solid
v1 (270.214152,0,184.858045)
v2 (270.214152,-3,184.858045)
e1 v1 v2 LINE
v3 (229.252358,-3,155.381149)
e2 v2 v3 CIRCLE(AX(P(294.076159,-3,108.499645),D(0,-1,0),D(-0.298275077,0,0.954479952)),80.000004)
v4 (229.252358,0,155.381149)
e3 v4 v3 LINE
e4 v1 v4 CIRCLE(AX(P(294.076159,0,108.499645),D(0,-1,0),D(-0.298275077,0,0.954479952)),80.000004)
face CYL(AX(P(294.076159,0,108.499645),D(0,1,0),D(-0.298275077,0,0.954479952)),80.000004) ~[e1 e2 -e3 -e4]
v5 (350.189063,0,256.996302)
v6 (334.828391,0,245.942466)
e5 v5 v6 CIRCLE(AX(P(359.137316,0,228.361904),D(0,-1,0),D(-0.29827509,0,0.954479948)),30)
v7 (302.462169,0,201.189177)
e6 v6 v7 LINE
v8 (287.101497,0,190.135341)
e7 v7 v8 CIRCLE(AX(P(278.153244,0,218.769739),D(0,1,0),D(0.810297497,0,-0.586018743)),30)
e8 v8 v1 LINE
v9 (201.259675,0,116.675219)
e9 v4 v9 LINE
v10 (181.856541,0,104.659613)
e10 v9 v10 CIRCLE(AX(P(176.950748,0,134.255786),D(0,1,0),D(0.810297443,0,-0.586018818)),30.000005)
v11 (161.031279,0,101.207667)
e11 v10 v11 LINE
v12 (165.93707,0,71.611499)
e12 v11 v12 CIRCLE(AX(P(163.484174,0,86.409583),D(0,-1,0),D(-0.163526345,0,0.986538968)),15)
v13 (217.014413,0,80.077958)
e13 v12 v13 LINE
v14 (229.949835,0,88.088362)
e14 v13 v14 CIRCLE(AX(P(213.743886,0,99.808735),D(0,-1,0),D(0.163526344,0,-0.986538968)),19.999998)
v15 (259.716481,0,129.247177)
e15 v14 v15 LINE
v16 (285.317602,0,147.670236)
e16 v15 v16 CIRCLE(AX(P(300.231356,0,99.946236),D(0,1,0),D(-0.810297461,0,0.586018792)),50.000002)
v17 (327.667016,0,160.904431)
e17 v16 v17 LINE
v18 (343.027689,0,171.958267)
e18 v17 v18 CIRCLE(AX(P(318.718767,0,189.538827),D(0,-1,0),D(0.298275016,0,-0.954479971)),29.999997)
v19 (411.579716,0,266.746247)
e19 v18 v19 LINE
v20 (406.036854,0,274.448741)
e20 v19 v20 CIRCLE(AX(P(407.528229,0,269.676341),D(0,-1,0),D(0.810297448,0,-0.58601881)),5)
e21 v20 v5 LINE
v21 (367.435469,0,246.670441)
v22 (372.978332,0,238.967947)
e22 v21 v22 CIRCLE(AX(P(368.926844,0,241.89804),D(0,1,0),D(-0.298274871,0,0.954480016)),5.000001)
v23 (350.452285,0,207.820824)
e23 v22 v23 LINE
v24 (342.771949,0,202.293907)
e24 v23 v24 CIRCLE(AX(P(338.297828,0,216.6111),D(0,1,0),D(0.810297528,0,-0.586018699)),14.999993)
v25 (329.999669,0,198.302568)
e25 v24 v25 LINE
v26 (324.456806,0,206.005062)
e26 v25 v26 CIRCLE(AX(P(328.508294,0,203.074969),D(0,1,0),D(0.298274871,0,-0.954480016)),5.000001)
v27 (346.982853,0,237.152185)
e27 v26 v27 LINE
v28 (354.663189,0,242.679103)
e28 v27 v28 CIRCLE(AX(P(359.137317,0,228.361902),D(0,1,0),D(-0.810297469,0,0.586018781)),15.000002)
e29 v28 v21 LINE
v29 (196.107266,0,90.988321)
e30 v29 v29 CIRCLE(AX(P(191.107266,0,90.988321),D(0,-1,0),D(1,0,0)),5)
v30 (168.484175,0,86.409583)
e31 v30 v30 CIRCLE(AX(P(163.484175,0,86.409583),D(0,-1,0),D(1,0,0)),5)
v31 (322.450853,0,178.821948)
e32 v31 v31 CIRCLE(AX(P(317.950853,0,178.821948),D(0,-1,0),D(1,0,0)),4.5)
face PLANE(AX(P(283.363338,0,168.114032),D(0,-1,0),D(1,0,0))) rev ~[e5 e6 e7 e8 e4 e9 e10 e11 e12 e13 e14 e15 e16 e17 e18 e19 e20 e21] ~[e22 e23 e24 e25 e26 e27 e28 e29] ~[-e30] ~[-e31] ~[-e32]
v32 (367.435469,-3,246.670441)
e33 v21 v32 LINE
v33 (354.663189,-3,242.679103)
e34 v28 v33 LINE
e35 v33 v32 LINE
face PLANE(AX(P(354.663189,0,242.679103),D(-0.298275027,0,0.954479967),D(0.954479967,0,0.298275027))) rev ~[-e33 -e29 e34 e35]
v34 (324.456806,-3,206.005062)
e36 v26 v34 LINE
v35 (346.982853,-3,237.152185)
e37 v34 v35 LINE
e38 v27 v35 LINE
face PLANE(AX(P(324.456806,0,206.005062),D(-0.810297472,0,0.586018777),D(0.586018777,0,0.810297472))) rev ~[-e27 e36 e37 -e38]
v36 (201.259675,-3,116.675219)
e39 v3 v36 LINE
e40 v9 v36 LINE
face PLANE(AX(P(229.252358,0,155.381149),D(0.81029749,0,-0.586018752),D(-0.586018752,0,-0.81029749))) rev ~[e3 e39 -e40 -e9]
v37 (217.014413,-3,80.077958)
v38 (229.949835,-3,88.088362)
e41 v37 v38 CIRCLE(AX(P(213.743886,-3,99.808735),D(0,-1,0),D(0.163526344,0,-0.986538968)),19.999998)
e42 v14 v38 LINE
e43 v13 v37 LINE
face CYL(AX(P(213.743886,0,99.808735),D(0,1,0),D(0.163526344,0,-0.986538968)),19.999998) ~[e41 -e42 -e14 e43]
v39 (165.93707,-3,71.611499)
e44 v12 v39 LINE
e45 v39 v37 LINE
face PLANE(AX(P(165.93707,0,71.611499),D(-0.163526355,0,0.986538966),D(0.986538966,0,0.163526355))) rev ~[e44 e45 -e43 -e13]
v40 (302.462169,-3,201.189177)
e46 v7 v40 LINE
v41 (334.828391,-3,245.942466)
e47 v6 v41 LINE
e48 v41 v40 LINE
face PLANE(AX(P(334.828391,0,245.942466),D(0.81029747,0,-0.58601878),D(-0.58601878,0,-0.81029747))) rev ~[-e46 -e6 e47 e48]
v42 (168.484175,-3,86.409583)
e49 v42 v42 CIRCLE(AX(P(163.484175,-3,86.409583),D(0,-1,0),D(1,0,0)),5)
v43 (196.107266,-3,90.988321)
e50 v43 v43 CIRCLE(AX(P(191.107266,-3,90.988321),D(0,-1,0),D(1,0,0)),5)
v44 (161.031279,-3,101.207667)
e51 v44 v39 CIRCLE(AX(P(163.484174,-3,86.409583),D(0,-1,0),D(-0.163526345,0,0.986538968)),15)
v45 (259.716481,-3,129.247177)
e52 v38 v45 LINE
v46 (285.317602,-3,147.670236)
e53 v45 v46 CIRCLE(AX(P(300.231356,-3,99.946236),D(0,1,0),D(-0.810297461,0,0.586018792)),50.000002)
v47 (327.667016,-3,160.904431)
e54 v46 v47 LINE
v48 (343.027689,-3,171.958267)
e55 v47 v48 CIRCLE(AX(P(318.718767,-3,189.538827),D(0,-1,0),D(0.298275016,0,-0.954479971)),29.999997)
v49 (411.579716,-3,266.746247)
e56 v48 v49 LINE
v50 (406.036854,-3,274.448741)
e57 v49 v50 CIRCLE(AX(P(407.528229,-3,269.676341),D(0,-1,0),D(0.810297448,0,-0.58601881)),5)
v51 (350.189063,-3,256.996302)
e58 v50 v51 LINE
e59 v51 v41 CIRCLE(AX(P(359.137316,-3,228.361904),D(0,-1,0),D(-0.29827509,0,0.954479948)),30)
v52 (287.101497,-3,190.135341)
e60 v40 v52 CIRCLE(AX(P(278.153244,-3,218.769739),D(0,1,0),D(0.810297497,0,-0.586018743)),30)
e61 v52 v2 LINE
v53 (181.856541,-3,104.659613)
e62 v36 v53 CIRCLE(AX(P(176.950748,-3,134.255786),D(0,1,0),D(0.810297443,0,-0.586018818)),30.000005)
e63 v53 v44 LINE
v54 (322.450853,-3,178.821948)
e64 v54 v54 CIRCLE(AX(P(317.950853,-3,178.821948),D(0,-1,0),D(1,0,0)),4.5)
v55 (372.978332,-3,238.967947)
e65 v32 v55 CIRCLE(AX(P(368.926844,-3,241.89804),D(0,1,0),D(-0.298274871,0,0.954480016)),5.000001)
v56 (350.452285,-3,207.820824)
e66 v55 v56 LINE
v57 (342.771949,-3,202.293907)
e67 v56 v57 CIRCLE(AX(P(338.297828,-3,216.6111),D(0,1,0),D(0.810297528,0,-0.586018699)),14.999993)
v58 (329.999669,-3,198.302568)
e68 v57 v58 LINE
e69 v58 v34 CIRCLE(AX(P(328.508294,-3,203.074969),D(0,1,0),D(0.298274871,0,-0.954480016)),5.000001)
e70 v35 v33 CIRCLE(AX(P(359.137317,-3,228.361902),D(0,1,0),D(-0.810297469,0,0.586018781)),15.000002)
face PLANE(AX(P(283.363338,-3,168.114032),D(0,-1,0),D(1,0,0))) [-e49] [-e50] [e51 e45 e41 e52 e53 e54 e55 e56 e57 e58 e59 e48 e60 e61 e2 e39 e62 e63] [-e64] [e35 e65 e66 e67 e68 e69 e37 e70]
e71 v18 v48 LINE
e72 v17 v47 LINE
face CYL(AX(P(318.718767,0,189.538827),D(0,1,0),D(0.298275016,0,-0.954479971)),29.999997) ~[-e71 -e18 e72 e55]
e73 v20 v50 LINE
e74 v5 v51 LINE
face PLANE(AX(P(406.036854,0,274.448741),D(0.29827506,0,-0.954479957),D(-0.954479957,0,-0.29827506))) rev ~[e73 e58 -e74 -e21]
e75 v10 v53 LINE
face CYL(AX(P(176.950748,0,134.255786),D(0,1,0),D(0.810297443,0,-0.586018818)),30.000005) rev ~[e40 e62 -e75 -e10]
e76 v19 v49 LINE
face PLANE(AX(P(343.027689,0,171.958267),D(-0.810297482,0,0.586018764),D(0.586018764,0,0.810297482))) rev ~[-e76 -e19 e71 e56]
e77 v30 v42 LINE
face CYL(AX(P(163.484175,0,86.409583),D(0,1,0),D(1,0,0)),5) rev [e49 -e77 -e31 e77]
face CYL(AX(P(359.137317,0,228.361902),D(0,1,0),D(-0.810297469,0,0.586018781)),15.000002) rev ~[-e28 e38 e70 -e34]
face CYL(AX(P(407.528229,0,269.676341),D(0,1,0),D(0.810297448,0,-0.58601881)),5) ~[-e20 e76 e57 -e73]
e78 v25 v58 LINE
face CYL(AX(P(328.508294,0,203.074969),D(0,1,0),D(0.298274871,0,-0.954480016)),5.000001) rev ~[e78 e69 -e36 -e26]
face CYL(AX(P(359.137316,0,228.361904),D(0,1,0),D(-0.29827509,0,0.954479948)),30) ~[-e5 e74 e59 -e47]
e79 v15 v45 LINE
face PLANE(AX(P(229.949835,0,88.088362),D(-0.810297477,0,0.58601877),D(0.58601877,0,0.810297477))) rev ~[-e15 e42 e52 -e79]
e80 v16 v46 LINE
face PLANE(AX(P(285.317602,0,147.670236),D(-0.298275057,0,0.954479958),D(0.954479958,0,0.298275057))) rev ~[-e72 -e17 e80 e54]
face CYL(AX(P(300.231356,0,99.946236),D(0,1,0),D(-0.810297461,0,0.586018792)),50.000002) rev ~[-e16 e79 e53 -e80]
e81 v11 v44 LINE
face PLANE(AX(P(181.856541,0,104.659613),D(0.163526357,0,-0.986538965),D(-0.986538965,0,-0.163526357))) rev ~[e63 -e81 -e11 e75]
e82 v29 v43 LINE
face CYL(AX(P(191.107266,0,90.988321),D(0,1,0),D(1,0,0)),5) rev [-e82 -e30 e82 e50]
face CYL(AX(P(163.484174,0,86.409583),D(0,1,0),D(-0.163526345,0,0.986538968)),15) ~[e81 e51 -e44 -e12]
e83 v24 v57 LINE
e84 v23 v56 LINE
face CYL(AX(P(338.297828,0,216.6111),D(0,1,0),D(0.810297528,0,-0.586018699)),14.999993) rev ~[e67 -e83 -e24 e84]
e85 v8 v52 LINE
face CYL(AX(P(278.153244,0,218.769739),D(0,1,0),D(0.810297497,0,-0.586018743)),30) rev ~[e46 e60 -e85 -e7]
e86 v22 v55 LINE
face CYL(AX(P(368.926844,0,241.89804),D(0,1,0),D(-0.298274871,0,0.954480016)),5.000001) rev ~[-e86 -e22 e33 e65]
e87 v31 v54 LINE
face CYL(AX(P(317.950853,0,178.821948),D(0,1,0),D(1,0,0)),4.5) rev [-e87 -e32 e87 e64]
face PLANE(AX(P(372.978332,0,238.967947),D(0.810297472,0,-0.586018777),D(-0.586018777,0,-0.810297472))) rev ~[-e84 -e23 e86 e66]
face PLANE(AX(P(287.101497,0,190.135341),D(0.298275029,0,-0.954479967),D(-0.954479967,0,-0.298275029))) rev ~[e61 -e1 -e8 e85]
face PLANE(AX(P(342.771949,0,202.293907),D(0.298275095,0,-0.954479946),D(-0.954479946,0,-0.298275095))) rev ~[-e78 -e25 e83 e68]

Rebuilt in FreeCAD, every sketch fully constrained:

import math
import FreeCAD as App
import Part
import Sketcher
from FreeCAD import Vector

doc = App.newDocument("Part")
params = doc.addObject("Spreadsheet::Sheet", "Params")
for row, (alias, value) in enumerate([
    ("sketch1_diameter", "10 mm"),
    ("sketch1_diameter2", "10 mm"),
    ("sketch1_diameter3", "9 mm"),
    ("sketch1_radius", "15 mm"),
    ("sketch1_radius2", "19.999998 mm"),
    ("pad1_length", "3 mm"),
], start=1):
    params.set(f"A{row}", alias)
    params.set(f"B{row}", "=" + value)
    params.setAlias(f"B{row}", alias)

body = doc.addObject("PartDesign::Body", "Body")

# Sketch on XZ plane
sketch1 = doc.addObject("Sketcher::SketchObject", "Sketch")
body.addObject(sketch1)
sketch1.AttachmentSupport = (doc.XZ_Plane, [""])
sketch1.MapMode = "FlatFace"
sketch1.addGeometry([
    Part.LineSegment(Vector(181.856541, 104.659613, 0), Vector(161.031279, 101.207667, 0)),  # 0
    Part.ArcOfCircle(Part.Circle(Vector(163.484174, 86.409583, 0), Vector(0, 0, 1), 15), math.radians(99.411638), math.radians(279.411641)),  # 1
    Part.LineSegment(Vector(165.93707, 71.611499, 0), Vector(217.014413, 80.077958, 0)),  # 2
    Part.ArcOfCircle(Part.Circle(Vector(213.743886, 99.808735, 0), Vector(0, 0, 1), 19.999998), math.radians(-80.588362), math.radians(-35.874991)),  # 3
    Part.LineSegment(Vector(229.949835, 88.088362, 0), Vector(259.716481, 129.247177, 0)),  # 4
    Part.ArcOfCircle(Part.Circle(Vector(300.231356, 99.946236, 0), Vector(0, 0, 1), 50.000002), math.radians(107.354029), math.radians(144.125004)),  # 5
    Part.LineSegment(Vector(285.317602, 147.670236, 0), Vector(327.667016, 160.904431, 0)),  # 6
    Part.ArcOfCircle(Part.Circle(Vector(318.718767, 189.538827, 0), Vector(0, 0, 1), 29.999997), math.radians(-72.645974), math.radians(-35.874991)),  # 7
    Part.LineSegment(Vector(343.027689, 171.958267, 0), Vector(411.579716, 266.746247, 0)),  # 8
    Part.ArcOfCircle(Part.Circle(Vector(407.528229, 269.676341, 0), Vector(0, 0, 1), 5), math.radians(-35.874997), math.radians(107.354022)),  # 9
    Part.LineSegment(Vector(406.036854, 274.448741, 0), Vector(350.189063, 256.996302, 0)),  # 10
    Part.ArcOfCircle(Part.Circle(Vector(359.137316, 228.361904, 0), Vector(0, 0, 1), 30), math.radians(107.35403), math.radians(144.125008)),  # 11
    Part.LineSegment(Vector(334.828391, 245.942466, 0), Vector(302.462169, 201.189177, 0)),  # 12
    Part.ArcOfCircle(Part.Circle(Vector(278.153244, 218.769739, 0), Vector(0, 0, 1), 30), math.radians(-72.64597), math.radians(-35.874992)),  # 13
    Part.LineSegment(Vector(287.101497, 190.135341, 0), Vector(270.214152, 184.858045, 0)),  # 14
    Part.ArcOfCircle(Part.Circle(Vector(294.076159, 108.499645, 0), Vector(0, 0, 1), 80.000004), math.radians(107.35403), math.radians(144.125006)),  # 15
    Part.LineSegment(Vector(229.252358, 155.381149, 0), Vector(201.259675, 116.675219, 0)),  # 16
    Part.ArcOfCircle(Part.Circle(Vector(176.950748, 134.255786, 0), Vector(0, 0, 1), 30.000005), math.radians(-80.588359), math.radians(-35.874997)),  # 17
    Part.Circle(Vector(163.484175, 86.409583, 0), Vector(0, 0, 1), 5),  # 18
    Part.Circle(Vector(191.107266, 90.988321, 0), Vector(0, 0, 1), 5),  # 19
    Part.Circle(Vector(317.950853, 178.821948, 0), Vector(0, 0, 1), 4.5),  # 20
    Part.LineSegment(Vector(324.456806, 206.005062, 0), Vector(346.982853, 237.152185, 0)),  # 21
    Part.ArcOfCircle(Part.Circle(Vector(359.137317, 228.361902, 0), Vector(0, 0, 1), 15.000002), math.radians(107.354033), math.radians(144.125005)),  # 22
    Part.LineSegment(Vector(354.663189, 242.679103, 0), Vector(367.435469, 246.670441, 0)),  # 23
    Part.ArcOfCircle(Part.Circle(Vector(368.926844, 241.89804, 0), Vector(0, 0, 1), 5.000001), math.radians(-35.874982), math.radians(107.354017)),  # 24
    Part.LineSegment(Vector(372.978332, 238.967947, 0), Vector(350.452285, 207.820824, 0)),  # 25
    Part.ArcOfCircle(Part.Circle(Vector(338.297828, 216.6111, 0), Vector(0, 0, 1), 14.999993), math.radians(-72.645982), math.radians(-35.874989)),  # 26
    Part.LineSegment(Vector(342.771949, 202.293907, 0), Vector(329.999669, 198.302568, 0)),  # 27
    Part.ArcOfCircle(Part.Circle(Vector(328.508294, 203.074969, 0), Vector(0, 0, 1), 5.000001), math.radians(144.125018), math.radians(287.354017)),  # 28
], False)
sketch1.addConstraint([
    Sketcher.Constraint("Coincident", 0, 2, 1, 1),
    Sketcher.Constraint("Coincident", 1, 2, 2, 1),
    Sketcher.Constraint("Coincident", 2, 2, 3, 1),
    Sketcher.Constraint("Coincident", 3, 2, 4, 1),
    Sketcher.Constraint("Coincident", 4, 2, 5, 2),
    Sketcher.Constraint("Coincident", 5, 1, 6, 1),
    Sketcher.Constraint("Coincident", 6, 2, 7, 1),
    Sketcher.Constraint("Coincident", 7, 2, 8, 1),
    Sketcher.Constraint("Coincident", 8, 2, 9, 1),
    Sketcher.Constraint("Coincident", 9, 2, 10, 1),
    Sketcher.Constraint("Coincident", 10, 2, 11, 1),
    Sketcher.Constraint("Coincident", 11, 2, 12, 1),
    Sketcher.Constraint("Coincident", 12, 2, 13, 2),
    Sketcher.Constraint("Coincident", 13, 1, 14, 1),
    Sketcher.Constraint("Coincident", 14, 2, 15, 1),
    Sketcher.Constraint("Coincident", 15, 2, 16, 1),
    Sketcher.Constraint("Coincident", 16, 2, 17, 2),
    Sketcher.Constraint("Coincident", 17, 1, 0, 1),
    Sketcher.Constraint("Coincident", 21, 2, 22, 2),
    Sketcher.Constraint("Coincident", 22, 1, 23, 1),
    Sketcher.Constraint("Coincident", 23, 2, 24, 2),
    Sketcher.Constraint("Coincident", 24, 1, 25, 1),
    Sketcher.Constraint("Coincident", 25, 2, 26, 2),
    Sketcher.Constraint("Coincident", 26, 1, 27, 1),
    Sketcher.Constraint("Coincident", 27, 2, 28, 2),
    Sketcher.Constraint("Coincident", 28, 1, 21, 1),
    Sketcher.Constraint("Coincident", 18, 3, 1, 3),
    Sketcher.Constraint("Coincident", 22, 3, 11, 3),
    Sketcher.Constraint("Diameter", 18, 10.0),
    Sketcher.Constraint("Diameter", 19, 10.0),
    Sketcher.Constraint("Diameter", 20, 9.0),
    Sketcher.Constraint("Radius", 1, 15.0),
    Sketcher.Constraint("Radius", 3, 19.999998),
    Sketcher.Constraint("Radius", 9, 5.0),
    Sketcher.Constraint("Radius", 11, 30.0),
    Sketcher.Constraint("Radius", 13, 30.0),
    Sketcher.Constraint("Radius", 22, 15.000002),
    Sketcher.Constraint("Radius", 24, 5.000001),
    Sketcher.Constraint("Radius", 28, 5.000001),
    Sketcher.Constraint("Radius", 5, 50.000002),
    Sketcher.Constraint("Radius", 7, 29.999997),
    Sketcher.Constraint("Radius", 15, 80.000004),
    Sketcher.Constraint("Radius", 17, 30.000005),
    Sketcher.Constraint("Radius", 26, 14.999993),
    Sketcher.Constraint("DistanceY", 5, 3, 5, 1, 47.724),
    Sketcher.Constraint("Distance", 23, 13.381402),
    Sketcher.Constraint("DistanceY", -1, 1, 26, 3, 216.6111),
    Sketcher.Constraint("DistanceY", -1, 1, 1, 2, 71.611499),
    Sketcher.Constraint("DistanceX", -1, 1, 5, 1, 285.317602),
    Sketcher.Constraint("DistanceY", -1, 1, 10, 2, 256.996302),
    Sketcher.Constraint("DistanceY", 3, 3, 5, 3, 0.137501),
    Sketcher.Constraint("DistanceY", 13, 3, 9, 3, 50.906602),
    Sketcher.Constraint("DistanceY", 24, 3, 9, 3, 27.778301),
    Sketcher.Constraint("DistanceY", 7, 2, 28, 3, 31.116702),
    Sketcher.Constraint("DistanceX", 11, 3, 8, 2, 52.4424),
    Sketcher.Constraint("DistanceY", 9, 3, 9, 2, 4.7724),
    Sketcher.Constraint("DistanceY", 11, 3, 10, 2, 28.634398),
    Sketcher.Constraint("DistanceY", 13, 1, 13, 3, 28.634398),
    Sketcher.Constraint("DistanceX", 14, 2, 20, 3, 47.736701),
    Sketcher.Constraint("DistanceY", 22, 1, 10, 2, 14.317199),
    Sketcher.Constraint("DistanceY", 24, 3, 23, 2, 4.772401),
    Sketcher.Constraint("DistanceY", 27, 2, 28, 3, 4.772401),
    Sketcher.Constraint("Distance", 2, 51.774278),
    Sketcher.Constraint("Distance", 12, 55.230691),
    Sketcher.Constraint("Distance", 14, 17.692718),
    Sketcher.Constraint("Distance", 21, 38.439122),
    Sketcher.Constraint("Distance", 25, 38.439122),
    Sketcher.Constraint("DistanceX", -1, 1, 9, 3, 407.528229),
    Sketcher.Constraint("DistanceY", -1, 1, 9, 3, 269.676341),
    Sketcher.Constraint("DistanceX", -1, 1, 15, 3, 294.076159),
    Sketcher.Constraint("DistanceX", -1, 1, 17, 3, 176.950748),
    Sketcher.Constraint("DistanceY", -1, 1, 19, 3, 90.988321),
    Sketcher.Constraint("DistanceY", -1, 1, 20, 3, 178.821948),
    Sketcher.Constraint("DistanceX", -1, 1, 26, 3, 338.297828),
    Sketcher.Constraint("DistanceY", -1, 1, 28, 3, 203.074969),
    Sketcher.Constraint("DistanceX", -1, 1, 0, 2, 161.031279),
    Sketcher.Constraint("DistanceX", -1, 1, 1, 2, 165.93707),
    Sketcher.Constraint("DistanceX", -1, 1, 4, 2, 259.716481),
    Sketcher.Constraint("DistanceY", -1, 1, 6, 2, 160.904431),
    Sketcher.Constraint("DistanceX", -1, 1, 7, 2, 343.027689),
    Sketcher.Constraint("DistanceX", -1, 1, 11, 2, 334.828391),
    Sketcher.Constraint("DistanceX", -1, 1, 12, 2, 302.462169),
    Sketcher.Constraint("DistanceX", -1, 1, 14, 2, 270.214152),
    Sketcher.Constraint("DistanceX", -1, 1, 15, 2, 229.252358),
    Sketcher.Constraint("DistanceY", -1, 1, 15, 2, 155.381149),
    Sketcher.Constraint("DistanceY", -1, 1, 16, 2, 116.675219),
    Sketcher.Constraint("DistanceX", -1, 1, 17, 1, 181.856541),
    Sketcher.Constraint("DistanceX", -1, 1, 24, 1, 372.978332),
    Sketcher.Constraint("DistanceX", -1, 1, 26, 1, 342.771949),
    Sketcher.Constraint("DistanceX", -1, 1, 27, 2, 329.999669),
    Sketcher.Constraint("DistanceY", -1, 1, 28, 1, 206.005062),
    Sketcher.Constraint("DistanceX", 3, 3, 5, 3, 86.487469),
    Sketcher.Constraint("DistanceX", 1, 3, 5, 3, 136.747182),
    Sketcher.Constraint("DistanceX", 5, 3, 7, 3, 18.487411),
    Sketcher.Constraint("DistanceY", 5, 3, 7, 3, 89.592591),
    Sketcher.Constraint("DistanceY", 3, 3, 17, 3, 34.447051),
    Sketcher.Constraint("DistanceX", 19, 3, 3, 3, 22.63662),
    Sketcher.Constraint("DistanceX", 2, 2, 3, 2, 12.935422),
])
sketch1.setExpression("Constraints[28]", "Params.sketch1_diameter")
sketch1.setExpression("Constraints[29]", "Params.sketch1_diameter2")
sketch1.setExpression("Constraints[30]", "Params.sketch1_diameter3")
sketch1.setExpression("Constraints[31]", "Params.sketch1_radius")
sketch1.setExpression("Constraints[32]", "Params.sketch1_radius2")
pad1 = doc.addObject("PartDesign::Pad", "Pad")
body.addObject(pad1)
pad1.Profile = sketch1
pad1.setExpression("Length", "Params.pad1_length")

doc.recompute()
